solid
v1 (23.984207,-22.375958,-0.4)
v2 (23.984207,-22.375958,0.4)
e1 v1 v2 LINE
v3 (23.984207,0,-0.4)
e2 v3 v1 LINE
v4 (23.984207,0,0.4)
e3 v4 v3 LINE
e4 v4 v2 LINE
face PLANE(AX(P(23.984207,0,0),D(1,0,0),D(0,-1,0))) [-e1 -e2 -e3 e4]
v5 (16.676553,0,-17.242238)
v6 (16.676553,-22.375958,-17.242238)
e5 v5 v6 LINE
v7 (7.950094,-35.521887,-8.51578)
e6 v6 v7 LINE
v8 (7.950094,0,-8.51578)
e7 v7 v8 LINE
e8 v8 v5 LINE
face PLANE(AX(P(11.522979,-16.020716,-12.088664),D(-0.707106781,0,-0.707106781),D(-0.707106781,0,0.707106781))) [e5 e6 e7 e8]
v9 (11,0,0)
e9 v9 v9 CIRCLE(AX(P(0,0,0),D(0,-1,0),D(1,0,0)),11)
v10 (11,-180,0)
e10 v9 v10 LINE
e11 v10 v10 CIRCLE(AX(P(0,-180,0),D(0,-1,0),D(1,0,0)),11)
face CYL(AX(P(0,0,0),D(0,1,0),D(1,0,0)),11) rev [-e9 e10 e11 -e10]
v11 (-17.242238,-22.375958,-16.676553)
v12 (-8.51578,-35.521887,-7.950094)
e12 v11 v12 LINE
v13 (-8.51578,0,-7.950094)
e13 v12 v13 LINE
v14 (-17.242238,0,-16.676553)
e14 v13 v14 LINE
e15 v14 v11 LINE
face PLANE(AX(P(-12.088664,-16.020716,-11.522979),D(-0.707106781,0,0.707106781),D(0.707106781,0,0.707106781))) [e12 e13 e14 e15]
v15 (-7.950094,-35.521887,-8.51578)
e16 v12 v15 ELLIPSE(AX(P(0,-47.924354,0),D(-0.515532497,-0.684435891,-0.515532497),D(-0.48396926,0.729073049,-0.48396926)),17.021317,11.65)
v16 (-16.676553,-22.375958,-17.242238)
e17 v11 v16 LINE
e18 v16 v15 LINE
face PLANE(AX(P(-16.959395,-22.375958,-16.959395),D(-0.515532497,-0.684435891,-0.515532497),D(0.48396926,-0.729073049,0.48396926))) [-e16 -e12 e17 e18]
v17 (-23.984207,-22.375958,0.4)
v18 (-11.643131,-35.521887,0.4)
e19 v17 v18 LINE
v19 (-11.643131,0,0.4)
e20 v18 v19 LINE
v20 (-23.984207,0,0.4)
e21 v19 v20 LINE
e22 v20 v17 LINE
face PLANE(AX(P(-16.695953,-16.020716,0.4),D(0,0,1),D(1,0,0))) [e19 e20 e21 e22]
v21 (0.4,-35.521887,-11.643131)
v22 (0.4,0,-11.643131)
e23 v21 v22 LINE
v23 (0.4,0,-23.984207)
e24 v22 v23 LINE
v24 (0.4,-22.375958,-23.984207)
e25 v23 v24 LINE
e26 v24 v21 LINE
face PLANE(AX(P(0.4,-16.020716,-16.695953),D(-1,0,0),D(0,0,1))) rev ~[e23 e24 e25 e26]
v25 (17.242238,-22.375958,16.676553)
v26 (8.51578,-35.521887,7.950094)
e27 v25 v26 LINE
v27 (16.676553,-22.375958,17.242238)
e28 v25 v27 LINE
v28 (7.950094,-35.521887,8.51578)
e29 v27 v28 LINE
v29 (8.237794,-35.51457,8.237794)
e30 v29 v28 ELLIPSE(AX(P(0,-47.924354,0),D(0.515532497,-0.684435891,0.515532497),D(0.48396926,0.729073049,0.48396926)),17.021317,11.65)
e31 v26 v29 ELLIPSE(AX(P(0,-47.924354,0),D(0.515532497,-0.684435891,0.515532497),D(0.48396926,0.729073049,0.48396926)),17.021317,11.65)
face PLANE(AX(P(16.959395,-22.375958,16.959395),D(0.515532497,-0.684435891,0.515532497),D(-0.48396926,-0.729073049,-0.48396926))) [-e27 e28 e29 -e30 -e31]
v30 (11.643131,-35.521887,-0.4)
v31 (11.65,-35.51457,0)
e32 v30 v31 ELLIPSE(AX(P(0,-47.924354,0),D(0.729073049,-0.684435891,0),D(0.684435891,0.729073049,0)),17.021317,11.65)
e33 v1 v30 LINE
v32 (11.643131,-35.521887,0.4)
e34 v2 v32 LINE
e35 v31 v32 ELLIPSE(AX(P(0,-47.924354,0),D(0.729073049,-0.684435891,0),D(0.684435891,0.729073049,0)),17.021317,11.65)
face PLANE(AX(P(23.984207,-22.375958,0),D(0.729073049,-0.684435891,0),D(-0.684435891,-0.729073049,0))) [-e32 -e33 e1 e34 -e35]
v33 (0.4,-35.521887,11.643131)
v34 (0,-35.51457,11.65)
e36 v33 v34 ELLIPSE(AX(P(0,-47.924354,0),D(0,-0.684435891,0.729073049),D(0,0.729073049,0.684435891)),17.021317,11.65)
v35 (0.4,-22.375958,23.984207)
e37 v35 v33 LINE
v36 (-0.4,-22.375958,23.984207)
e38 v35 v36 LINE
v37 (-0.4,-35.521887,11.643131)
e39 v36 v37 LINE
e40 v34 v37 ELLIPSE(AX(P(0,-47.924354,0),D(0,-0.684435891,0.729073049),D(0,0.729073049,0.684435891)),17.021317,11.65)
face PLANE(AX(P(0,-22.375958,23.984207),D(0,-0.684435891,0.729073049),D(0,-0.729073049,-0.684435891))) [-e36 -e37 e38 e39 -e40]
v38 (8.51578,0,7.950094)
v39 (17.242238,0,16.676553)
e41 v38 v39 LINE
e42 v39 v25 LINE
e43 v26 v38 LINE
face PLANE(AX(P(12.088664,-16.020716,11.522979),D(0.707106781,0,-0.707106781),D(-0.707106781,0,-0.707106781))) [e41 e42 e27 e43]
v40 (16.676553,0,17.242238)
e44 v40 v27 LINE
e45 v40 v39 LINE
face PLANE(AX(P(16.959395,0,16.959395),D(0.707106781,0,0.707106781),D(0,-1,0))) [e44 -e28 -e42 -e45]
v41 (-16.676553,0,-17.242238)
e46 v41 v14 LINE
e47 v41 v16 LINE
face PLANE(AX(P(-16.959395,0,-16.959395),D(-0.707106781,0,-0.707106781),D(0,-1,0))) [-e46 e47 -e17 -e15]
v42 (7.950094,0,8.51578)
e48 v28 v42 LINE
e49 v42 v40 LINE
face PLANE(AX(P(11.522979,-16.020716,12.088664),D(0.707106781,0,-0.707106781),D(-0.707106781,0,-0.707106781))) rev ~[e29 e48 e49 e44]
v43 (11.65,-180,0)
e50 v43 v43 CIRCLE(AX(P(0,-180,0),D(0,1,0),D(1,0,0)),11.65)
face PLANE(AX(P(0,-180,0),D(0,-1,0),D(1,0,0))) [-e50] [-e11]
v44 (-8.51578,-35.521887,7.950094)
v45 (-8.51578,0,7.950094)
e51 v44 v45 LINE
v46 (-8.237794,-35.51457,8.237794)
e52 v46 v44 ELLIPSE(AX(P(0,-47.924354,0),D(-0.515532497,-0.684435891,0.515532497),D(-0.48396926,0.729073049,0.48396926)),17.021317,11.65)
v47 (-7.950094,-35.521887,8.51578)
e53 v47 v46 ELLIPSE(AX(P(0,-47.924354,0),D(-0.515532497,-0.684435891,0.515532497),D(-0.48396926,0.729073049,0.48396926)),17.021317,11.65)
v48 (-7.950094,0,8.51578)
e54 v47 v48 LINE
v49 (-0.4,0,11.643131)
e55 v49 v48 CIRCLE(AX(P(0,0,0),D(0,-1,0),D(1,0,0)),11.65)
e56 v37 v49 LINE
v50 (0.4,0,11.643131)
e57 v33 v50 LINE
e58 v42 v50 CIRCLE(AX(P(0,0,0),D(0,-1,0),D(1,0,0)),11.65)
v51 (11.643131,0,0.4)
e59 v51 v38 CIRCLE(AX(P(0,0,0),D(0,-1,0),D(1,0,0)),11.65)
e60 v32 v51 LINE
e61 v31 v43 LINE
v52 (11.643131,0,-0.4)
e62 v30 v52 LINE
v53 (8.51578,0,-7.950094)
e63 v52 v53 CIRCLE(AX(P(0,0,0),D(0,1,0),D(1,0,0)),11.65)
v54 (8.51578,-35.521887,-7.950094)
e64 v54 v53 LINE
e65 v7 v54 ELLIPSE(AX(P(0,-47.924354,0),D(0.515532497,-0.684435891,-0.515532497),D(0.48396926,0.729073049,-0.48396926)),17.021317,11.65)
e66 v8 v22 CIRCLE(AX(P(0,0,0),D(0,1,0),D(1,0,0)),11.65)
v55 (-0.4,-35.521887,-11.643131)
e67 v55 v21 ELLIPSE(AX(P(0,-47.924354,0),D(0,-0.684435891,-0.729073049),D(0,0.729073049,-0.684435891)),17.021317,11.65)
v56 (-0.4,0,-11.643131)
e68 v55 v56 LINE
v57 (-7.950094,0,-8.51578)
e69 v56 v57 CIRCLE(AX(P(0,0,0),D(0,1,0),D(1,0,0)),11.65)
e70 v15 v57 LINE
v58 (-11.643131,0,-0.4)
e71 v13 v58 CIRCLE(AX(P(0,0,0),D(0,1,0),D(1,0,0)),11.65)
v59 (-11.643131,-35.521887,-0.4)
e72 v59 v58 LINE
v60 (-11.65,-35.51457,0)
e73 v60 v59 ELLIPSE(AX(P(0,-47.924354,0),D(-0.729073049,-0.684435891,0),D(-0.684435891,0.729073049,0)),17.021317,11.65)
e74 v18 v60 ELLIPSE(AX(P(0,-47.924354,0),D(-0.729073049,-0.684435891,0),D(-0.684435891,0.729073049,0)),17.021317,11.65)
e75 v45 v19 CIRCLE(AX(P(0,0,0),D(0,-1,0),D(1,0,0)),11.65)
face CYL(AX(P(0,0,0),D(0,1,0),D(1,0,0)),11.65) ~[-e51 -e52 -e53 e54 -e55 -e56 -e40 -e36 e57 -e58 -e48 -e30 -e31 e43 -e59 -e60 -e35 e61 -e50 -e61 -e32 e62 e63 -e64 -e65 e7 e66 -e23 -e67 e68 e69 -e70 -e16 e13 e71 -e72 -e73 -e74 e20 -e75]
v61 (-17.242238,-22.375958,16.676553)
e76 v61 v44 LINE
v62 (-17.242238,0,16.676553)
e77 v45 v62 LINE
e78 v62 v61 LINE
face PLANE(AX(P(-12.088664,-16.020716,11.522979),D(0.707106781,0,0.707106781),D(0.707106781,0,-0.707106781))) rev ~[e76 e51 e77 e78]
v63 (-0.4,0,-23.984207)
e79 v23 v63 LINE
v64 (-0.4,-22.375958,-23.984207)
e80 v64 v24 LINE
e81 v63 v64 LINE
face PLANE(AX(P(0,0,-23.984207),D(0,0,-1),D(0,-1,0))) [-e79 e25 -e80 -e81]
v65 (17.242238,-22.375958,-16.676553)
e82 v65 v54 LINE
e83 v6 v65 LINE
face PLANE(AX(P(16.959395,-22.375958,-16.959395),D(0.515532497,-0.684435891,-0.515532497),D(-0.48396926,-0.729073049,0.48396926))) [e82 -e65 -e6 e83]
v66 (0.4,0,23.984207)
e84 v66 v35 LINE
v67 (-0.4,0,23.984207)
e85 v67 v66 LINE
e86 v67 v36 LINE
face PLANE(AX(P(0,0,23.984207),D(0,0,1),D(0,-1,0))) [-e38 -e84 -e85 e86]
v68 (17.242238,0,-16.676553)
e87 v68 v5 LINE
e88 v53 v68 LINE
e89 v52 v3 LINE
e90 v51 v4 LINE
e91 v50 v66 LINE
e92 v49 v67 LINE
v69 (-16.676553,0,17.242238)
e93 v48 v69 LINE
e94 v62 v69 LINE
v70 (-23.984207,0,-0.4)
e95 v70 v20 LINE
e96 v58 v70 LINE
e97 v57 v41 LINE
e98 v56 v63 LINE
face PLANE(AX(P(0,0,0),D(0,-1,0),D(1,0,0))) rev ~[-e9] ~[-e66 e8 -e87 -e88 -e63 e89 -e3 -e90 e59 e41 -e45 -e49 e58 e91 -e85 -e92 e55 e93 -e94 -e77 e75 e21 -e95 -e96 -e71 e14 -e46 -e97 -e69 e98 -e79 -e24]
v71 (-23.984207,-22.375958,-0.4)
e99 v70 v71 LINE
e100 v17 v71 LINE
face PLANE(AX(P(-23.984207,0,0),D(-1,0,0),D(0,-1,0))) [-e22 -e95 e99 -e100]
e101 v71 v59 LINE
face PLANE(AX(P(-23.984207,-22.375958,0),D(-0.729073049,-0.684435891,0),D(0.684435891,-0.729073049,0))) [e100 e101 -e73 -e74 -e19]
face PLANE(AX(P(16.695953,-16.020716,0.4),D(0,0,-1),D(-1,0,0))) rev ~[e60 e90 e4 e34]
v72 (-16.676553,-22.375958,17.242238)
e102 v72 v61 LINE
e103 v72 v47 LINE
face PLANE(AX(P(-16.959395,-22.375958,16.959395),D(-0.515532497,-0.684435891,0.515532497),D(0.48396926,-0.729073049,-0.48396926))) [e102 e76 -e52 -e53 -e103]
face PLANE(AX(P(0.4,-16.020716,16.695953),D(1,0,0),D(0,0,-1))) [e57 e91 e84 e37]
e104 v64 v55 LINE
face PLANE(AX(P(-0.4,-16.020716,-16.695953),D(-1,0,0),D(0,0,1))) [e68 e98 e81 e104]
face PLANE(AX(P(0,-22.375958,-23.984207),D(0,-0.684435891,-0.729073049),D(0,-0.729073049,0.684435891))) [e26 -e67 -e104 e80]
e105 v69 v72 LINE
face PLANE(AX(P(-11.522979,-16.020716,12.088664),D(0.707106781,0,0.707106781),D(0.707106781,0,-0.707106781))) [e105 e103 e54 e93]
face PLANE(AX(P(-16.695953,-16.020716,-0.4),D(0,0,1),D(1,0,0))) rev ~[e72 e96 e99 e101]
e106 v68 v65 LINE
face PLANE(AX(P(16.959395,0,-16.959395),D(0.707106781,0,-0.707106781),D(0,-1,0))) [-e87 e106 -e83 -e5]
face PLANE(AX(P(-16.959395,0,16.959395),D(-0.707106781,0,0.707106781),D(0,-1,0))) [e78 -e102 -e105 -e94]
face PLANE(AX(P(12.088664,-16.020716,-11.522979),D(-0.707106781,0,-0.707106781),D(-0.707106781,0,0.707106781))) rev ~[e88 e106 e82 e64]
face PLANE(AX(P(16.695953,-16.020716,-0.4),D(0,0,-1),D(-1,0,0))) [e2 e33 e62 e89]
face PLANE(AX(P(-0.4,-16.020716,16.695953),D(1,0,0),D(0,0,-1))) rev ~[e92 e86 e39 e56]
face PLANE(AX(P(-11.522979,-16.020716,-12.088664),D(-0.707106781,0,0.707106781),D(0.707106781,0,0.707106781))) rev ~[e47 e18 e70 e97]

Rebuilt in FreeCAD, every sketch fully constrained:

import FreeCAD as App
import Part
import Sketcher
Q = App.Units.Quantity


def add_polygon(sketch, points):
    """Adds a closed chain of lines whose ends are joined by coincident constraints."""
    first, n = sketch.GeometryCount, len(points)
    for a, b in zip(points, points[1:] + points[:1]):
        sketch.addGeometry(Part.LineSegment(App.Vector(*a, 0), App.Vector(*b, 0)), False)
    for i in range(n):
        sketch.addConstraint(Sketcher.Constraint("Coincident", first + i, 2, first + (i + 1) % n, 1))

doc = App.newDocument("Part")
body = doc.addObject("PartDesign::Body", "Body")

sketch1 = body.newObject("Sketcher::SketchObject", "Sketch")
sketch1.AttachmentSupport = (doc.getObject("XZ_Plane"), [""])
sketch1.MapMode = "FlatFace"
sketch1.addGeometry(Part.Circle(App.Vector(0, 0, 0), App.Vector(0, 0, 1), 12), False)
sketch1.addGeometry(Part.Circle(App.Vector(0, 0, 0), App.Vector(0, 0, 1), 11), False)
sketch1.addConstraint(Sketcher.Constraint("Coincident", 0, 3, -1, 1))
sketch1.addConstraint(Sketcher.Constraint("Coincident", 1, 3, -1, 1))
sketch1.addConstraint(Sketcher.Constraint("Diameter", 1, Q("22 mm")))
sketch1.addConstraint(Sketcher.Constraint("Diameter", 0, Q("23.3 mm")))
pad1 = body.newObject("PartDesign::Pad", "Pad")
pad1.Profile = sketch1
pad1.Length = 180

sketch2 = body.newObject("Sketcher::SketchObject", "Sketch001")
sketch2.AttachmentSupport = (doc.getObject("XY_Plane"), [""])
sketch2.MapMode = "FlatFace"
add_polygon(sketch2, [(-11, -36), (-11, 0), (-24, 0), (-24, -22)])
sketch2.addConstraint(Sketcher.Constraint("Vertical", 0))
sketch2.addConstraint(Sketcher.Constraint("Horizontal", 1))
sketch2.addConstraint(Sketcher.Constraint("Vertical", 2))
sketch2.addConstraint(Sketcher.Constraint("PointOnObject", 0, 2, -1))
sketch2.addConstraint(Sketcher.Constraint("DistanceY", 2, 2, 2, 1, Q("22.375958 mm")))
sketch2.addConstraint(Sketcher.Constraint("Distance", 3, Q("18.504941 mm")))
sketch2.addConstraint(Sketcher.Constraint("DistanceX", 1, 2, 1, 1, Q("12.665446 mm")))
sketch2.addConstraint(Sketcher.Constraint("DistanceX", 0, 2, -1, 1, Q("11.318761 mm")))
pad2 = body.newObject("PartDesign::Pad", "Pad001")
pad2.Profile = sketch2
pad2.Length = 0.8
pad2.Midplane = True
body2 = doc.addObject("PartDesign::Body", "Body001")
doc.recompute()

body2.BaseFeature = body
doc.recompute()

body3 = doc.addObject("PartDesign::Body", "Body002")
body3.BaseFeature = body
body3.Placement = App.Placement(App.Vector(0, 0, 0), App.Rotation(App.Vector(0, 1, 0), 45))
boolean = body2.newObject("PartDesign::Boolean", "Boolean")
boolean.Type = "Fuse"
boolean.addObjects([body3])
doc.recompute()

body4 = doc.addObject("PartDesign::Body", "Body003")
body4.BaseFeature = body
body4.Placement = App.Placement(App.Vector(0, 0, 0), App.Rotation(App.Vector(0, 1, 0), 90))
boolean2 = body2.newObject("PartDesign::Boolean", "Boolean001")
boolean2.Type = "Fuse"
boolean2.addObjects([body4])
doc.recompute()

body5 = doc.addObject("PartDesign::Body", "Body004")
body5.BaseFeature = body
body5.Placement = App.Placement(App.Vector(0, 0, 0), App.Rotation(App.Vector(0, 1, 0), 135))
boolean3 = body2.newObject("PartDesign::Boolean", "Boolean002")
boolean3.Type = "Fuse"
boolean3.addObjects([body5])
doc.recompute()

body6 = doc.addObject("PartDesign::Body", "Body005")
body6.BaseFeature = body
body6.Placement = App.Placement(App.Vector(0, 0, 0), App.Rotation(App.Vector(0, 1, 0), 180))
boolean4 = body2.newObject("PartDesign::Boolean", "Boolean003")
boolean4.Type = "Fuse"
boolean4.addObjects([body6])
doc.recompute()

body7 = doc.addObject("PartDesign::Body", "Body006")
body7.BaseFeature = body
body7.Placement = App.Placement(App.Vector(0, 0, 0), App.Rotation(App.Vector(0, 1, 0), 225))
boolean5 = body2.newObject("PartDesign::Boolean", "Boolean004")
boolean5.Type = "Fuse"
boolean5.addObjects([body7])
doc.recompute()

body8 = doc.addObject("PartDesign::Body", "Body007")
body8.BaseFeature = body
body8.Placement = App.Placement(App.Vector(0, 0, 0), App.Rotation(App.Vector(0, 1, 0), 270))
boolean6 = body2.newObject("PartDesign::Boolean", "Boolean005")
boolean6.Type = "Fuse"
boolean6.addObjects([body8])
doc.recompute()

body.Placement = App.Placement(App.Vector(0, 0, 0), App.Rotation(App.Vector(0, 1, 0), 315))
boolean7 = body2.newObject("PartDesign::Boolean", "Boolean006")
boolean7.Type = "Fuse"
boolean7.addObjects([body])

doc.recompute()
